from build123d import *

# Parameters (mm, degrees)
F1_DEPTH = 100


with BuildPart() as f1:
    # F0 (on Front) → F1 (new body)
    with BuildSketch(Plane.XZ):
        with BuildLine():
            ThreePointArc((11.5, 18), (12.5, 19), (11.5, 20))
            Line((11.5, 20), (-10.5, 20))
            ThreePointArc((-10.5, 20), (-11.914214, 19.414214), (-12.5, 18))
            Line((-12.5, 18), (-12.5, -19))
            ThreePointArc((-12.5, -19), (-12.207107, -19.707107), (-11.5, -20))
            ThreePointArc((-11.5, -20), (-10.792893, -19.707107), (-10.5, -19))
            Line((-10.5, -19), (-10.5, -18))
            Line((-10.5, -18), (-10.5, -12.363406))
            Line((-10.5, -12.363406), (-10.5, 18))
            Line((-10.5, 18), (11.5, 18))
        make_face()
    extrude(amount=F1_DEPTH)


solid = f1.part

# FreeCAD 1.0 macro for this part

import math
import FreeCAD as App
import Part
import Sketcher

V = App.Vector

doc = App.newDocument("Part")
body = doc.addObject("PartDesign::Body", "Body")

# Sketch on XZ plane
sketch1 = body.newObject("Sketcher::SketchObject", "Sketch")
sketch1.AttachmentSupport = (doc.getObject("XZ_Plane"), [""])
sketch1.MapMode = "FlatFace"
sketch1.addGeometry([
    Part.ArcOfCircle(Part.Circle(V(11.5, 19, 0), V(0, 0, 1), 1), math.radians(-90), math.radians(90)),  # 0
    Part.LineSegment(V(11.5, 20, 0), V(-10.5, 20, 0)),  # 1
    Part.ArcOfCircle(Part.Circle(V(-10.5, 18, 0), V(0, 0, 1), 2), math.radians(90), math.radians(180)),  # 2
    Part.LineSegment(V(-12.5, 18, 0), V(-12.5, -19, 0)),  # 3
    Part.ArcOfCircle(Part.Circle(V(-11.5, -19, 0), V(0, 0, 1), 1), math.radians(180), math.radians(270)),  # 4
    Part.ArcOfCircle(Part.Circle(V(-11.5, -19, 0), V(0, 0, 1), 1), math.radians(-90), math.radians(0)),  # 5
    Part.LineSegment(V(-10.5, -19, 0), V(-10.5, 18, 0)),  # 6
    Part.LineSegment(V(-10.5, 18, 0), V(11.5, 18, 0)),  # 7
], False)
sketch1.addConstraint([
    Sketcher.Constraint("Tangent", 0, 2, 1, 1),
    Sketcher.Constraint("Tangent", 1, 2, 2, 1),
    Sketcher.Constraint("Tangent", 2, 2, 3, 1),
    Sketcher.Constraint("Tangent", 3, 2, 4, 1),
    Sketcher.Constraint("Tangent", 4, 2, 5, 1),
    Sketcher.Constraint("Tangent", 5, 2, 6, 1),
    Sketcher.Constraint("Coincident", 6, 2, 7, 1),
    Sketcher.Constraint("Tangent", 7, 2, 0, 1),
    Sketcher.Constraint("Horizontal", 1),
    Sketcher.Constraint("Vertical", 3),
    Sketcher.Constraint("Vertical", 6),
    Sketcher.Constraint("Horizontal", 7),
    Sketcher.Constraint("Coincident", 6, 2, 2, 3),
    Sketcher.Constraint("Equal", 0, 4),
    Sketcher.Constraint("Symmetric", 0, 3, 4, 3, -1, 1),
    Sketcher.Constraint("Vertical", 5, 3, 4, 2),
    Sketcher.Constraint("Radius", 0, 1.0),
    Sketcher.Constraint("DistanceX", 1, 2, 1, 1, 22.0),
    Sketcher.Constraint("DistanceY", 3, 2, 3, 1, 37.0),
])
pad1 = body.newObject("PartDesign::Pad", "Pad")
pad1.Profile = sketch1
pad1.Length = 100

doc.recompute()
